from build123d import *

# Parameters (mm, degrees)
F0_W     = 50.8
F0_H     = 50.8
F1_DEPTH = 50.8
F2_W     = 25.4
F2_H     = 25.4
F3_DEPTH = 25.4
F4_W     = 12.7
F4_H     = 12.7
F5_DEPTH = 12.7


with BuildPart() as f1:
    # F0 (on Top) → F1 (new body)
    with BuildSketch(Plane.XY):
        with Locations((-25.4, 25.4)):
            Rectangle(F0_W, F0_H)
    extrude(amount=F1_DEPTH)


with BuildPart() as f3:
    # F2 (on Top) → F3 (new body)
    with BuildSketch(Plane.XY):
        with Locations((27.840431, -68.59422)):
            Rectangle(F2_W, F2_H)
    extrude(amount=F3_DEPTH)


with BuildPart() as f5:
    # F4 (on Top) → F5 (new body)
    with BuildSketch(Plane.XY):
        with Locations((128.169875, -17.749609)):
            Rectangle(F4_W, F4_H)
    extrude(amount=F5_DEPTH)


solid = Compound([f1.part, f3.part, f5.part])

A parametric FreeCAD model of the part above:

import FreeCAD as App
import Part
import Sketcher
from FreeCAD import Vector
Q = App.Units.Quantity


def add_polygon(sketch, points):
    """Adds a closed chain of lines whose ends are joined by coincident constraints."""
    first, n = sketch.GeometryCount, len(points)
    for a, b in zip(points, points[1:] + points[:1]):
        sketch.addGeometry(Part.LineSegment(App.Vector(*a, 0), App.Vector(*b, 0)), False)
    for i in range(n):
        sketch.addConstraint(Sketcher.Constraint("Coincident", first + i, 2, first + (i + 1) % n, 1))

doc = App.newDocument("Part")
body = doc.addObject("PartDesign::Body", "Body")

# Sketch on XY plane
sketch1 = body.newObject("Sketcher::SketchObject", "Sketch")
sketch1.AttachmentSupport = (doc.getObject("XY_Plane"), [""])
sketch1.MapMode = "FlatFace"
add_polygon(sketch1, [(-51, 51), (-51, 0), (0, 0), (0, 51)])  # lines 0-3
sketch1.addConstraint([
    Sketcher.Constraint("Vertical", 0),
    Sketcher.Constraint("Horizontal", 1),
    Sketcher.Constraint("Vertical", 2),
    Sketcher.Constraint("Horizontal", 3),
    Sketcher.Constraint("Coincident", 1, 2, -1, 1),
    Sketcher.Constraint("Equal", 3, 0),
    Sketcher.Constraint("DistanceX", 1, 1, 1, 2, Q("2 in")),
])
pad1 = body.newObject("PartDesign::Pad", "Pad")
pad1.Profile = sketch1
pad1.Length = Q("2 in")
body2 = doc.addObject("PartDesign::Body", "Body001")

# Sketch on XY plane
sketch2 = body2.newObject("Sketcher::SketchObject", "Sketch001")
sketch2.AttachmentSupport = (doc.getObject("XY_Plane001"), [""])
sketch2.MapMode = "FlatFace"
add_polygon(sketch2, [(15, -56), (15, -81), (41, -81), (41, -56)])  # lines 0-3
sketch2.addConstraint([
    Sketcher.Constraint("Vertical", 0),
    Sketcher.Constraint("Horizontal", 1),
    Sketcher.Constraint("Vertical", 2),
    Sketcher.Constraint("Horizontal", 3),
    Sketcher.Constraint("Equal", 3, 0),
    Sketcher.Constraint("DistanceX", 1, 1, 1, 2, Q("1 in")),
    Sketcher.Constraint("DistanceX", -1, 1, 0, 2, Q("15.140431 mm")),
    Sketcher.Constraint("DistanceY", 0, 2, -1, 1, Q("81.29422 mm")),
])
pad2 = body2.newObject("PartDesign::Pad", "Pad001")
pad2.Profile = sketch2
pad2.Length = Q("1 in")
body3 = doc.addObject("PartDesign::Body", "Body002")

# Sketch on XY plane
sketch3 = body3.newObject("Sketcher::SketchObject", "Sketch002")
sketch3.AttachmentSupport = (doc.getObject("XY_Plane002"), [""])
sketch3.MapMode = "FlatFace"
add_polygon(sketch3, [(122, -11), (122, -24), (135, -24), (135, -11)])  # lines 0-3
sketch3.addConstraint([
    Sketcher.Constraint("Vertical", 0),
    Sketcher.Constraint("Horizontal", 1),
    Sketcher.Constraint("Vertical", 2),
    Sketcher.Constraint("Horizontal", 3),
    Sketcher.Constraint("Equal", 3, 0),
    Sketcher.Constraint("DistanceX", 1, 1, 1, 2, Q("0.5 in")),
    Sketcher.Constraint("DistanceY", 0, 2, -1, 1, Q("24.099609 mm")),
    Sketcher.Constraint("DistanceX", -1, 1, 0, 2, Q("121.819875 mm")),
])
pad3 = body3.newObject("PartDesign::Pad", "Pad002")
pad3.Profile = sketch3
pad3.Length = Q("0.5 in")

doc.recompute()
